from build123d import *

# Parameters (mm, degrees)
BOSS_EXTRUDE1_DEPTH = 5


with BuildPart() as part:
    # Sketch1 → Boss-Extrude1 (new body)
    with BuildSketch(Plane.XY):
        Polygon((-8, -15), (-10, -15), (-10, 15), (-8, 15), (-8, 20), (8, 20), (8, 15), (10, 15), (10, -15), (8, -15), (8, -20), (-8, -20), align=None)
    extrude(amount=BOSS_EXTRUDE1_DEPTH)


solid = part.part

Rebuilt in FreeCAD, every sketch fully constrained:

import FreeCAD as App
import Part
import Sketcher
Q = App.Units.Quantity


def add_polygon(sketch, points):
    """Adds a closed chain of lines whose ends are joined by coincident constraints."""
    first, n = sketch.GeometryCount, len(points)
    for a, b in zip(points, points[1:] + points[:1]):
        sketch.addGeometry(Part.LineSegment(App.Vector(*a, 0), App.Vector(*b, 0)), False)
    for i in range(n):
        sketch.addConstraint(Sketcher.Constraint("Coincident", first + i, 2, first + (i + 1) % n, 1))

doc = App.newDocument("Part")
body = doc.addObject("PartDesign::Body", "Body")

sketch1 = body.newObject("Sketcher::SketchObject", "Sketch")
sketch1.AttachmentSupport = (doc.getObject("XY_Plane"), [""])
sketch1.MapMode = "FlatFace"
add_polygon(sketch1, [(-10, -15), (-8, -15), (-8, -20), (8, -20), (8, -15), (10, -15), (10, 15), (8, 15), (8, 20), (-8, 20), (-8, 15), (-10, 15)])
sketch1.addConstraint(Sketcher.Constraint("Horizontal", 0))
sketch1.addConstraint(Sketcher.Constraint("Vertical", 1))
sketch1.addConstraint(Sketcher.Constraint("Horizontal", 2))
sketch1.addConstraint(Sketcher.Constraint("Vertical", 3))
sketch1.addConstraint(Sketcher.Constraint("Horizontal", 4))
sketch1.addConstraint(Sketcher.Constraint("Vertical", 5))
sketch1.addConstraint(Sketcher.Constraint("Horizontal", 6))
sketch1.addConstraint(Sketcher.Constraint("Vertical", 7))
sketch1.addConstraint(Sketcher.Constraint("Horizontal", 8))
sketch1.addConstraint(Sketcher.Constraint("Vertical", 9))
sketch1.addConstraint(Sketcher.Constraint("Horizontal", 10))
sketch1.addConstraint(Sketcher.Constraint("Vertical", 11))
sketch1.addConstraint(Sketcher.Constraint("Symmetric", 0, 2, 6, 2, -1, 1))
sketch1.addConstraint(Sketcher.Constraint("Symmetric", 2, 2, 8, 2, -1, 1))
sketch1.addConstraint(Sketcher.Constraint("Symmetric", 4, 2, 10, 2, -1, 1))
sketch1.addConstraint(Sketcher.Constraint("Symmetric", 0, 2, 3, 2, -2))
sketch1.addConstraint(Sketcher.Constraint("DistanceX", 0, 1, 0, 2, Q("2 mm")))
sketch1.addConstraint(Sketcher.Constraint("DistanceX", 2, 1, 2, 2, Q("16 mm")))
sketch1.addConstraint(Sketcher.Constraint("DistanceY", 1, 2, 1, 1, Q("5 mm")))
sketch1.addConstraint(Sketcher.Constraint("DistanceY", 5, 1, 5, 2, Q("30 mm")))
pad1 = body.newObject("PartDesign::Pad", "Pad")
pad1.Profile = sketch1
pad1.Length = 5

doc.recompute()
